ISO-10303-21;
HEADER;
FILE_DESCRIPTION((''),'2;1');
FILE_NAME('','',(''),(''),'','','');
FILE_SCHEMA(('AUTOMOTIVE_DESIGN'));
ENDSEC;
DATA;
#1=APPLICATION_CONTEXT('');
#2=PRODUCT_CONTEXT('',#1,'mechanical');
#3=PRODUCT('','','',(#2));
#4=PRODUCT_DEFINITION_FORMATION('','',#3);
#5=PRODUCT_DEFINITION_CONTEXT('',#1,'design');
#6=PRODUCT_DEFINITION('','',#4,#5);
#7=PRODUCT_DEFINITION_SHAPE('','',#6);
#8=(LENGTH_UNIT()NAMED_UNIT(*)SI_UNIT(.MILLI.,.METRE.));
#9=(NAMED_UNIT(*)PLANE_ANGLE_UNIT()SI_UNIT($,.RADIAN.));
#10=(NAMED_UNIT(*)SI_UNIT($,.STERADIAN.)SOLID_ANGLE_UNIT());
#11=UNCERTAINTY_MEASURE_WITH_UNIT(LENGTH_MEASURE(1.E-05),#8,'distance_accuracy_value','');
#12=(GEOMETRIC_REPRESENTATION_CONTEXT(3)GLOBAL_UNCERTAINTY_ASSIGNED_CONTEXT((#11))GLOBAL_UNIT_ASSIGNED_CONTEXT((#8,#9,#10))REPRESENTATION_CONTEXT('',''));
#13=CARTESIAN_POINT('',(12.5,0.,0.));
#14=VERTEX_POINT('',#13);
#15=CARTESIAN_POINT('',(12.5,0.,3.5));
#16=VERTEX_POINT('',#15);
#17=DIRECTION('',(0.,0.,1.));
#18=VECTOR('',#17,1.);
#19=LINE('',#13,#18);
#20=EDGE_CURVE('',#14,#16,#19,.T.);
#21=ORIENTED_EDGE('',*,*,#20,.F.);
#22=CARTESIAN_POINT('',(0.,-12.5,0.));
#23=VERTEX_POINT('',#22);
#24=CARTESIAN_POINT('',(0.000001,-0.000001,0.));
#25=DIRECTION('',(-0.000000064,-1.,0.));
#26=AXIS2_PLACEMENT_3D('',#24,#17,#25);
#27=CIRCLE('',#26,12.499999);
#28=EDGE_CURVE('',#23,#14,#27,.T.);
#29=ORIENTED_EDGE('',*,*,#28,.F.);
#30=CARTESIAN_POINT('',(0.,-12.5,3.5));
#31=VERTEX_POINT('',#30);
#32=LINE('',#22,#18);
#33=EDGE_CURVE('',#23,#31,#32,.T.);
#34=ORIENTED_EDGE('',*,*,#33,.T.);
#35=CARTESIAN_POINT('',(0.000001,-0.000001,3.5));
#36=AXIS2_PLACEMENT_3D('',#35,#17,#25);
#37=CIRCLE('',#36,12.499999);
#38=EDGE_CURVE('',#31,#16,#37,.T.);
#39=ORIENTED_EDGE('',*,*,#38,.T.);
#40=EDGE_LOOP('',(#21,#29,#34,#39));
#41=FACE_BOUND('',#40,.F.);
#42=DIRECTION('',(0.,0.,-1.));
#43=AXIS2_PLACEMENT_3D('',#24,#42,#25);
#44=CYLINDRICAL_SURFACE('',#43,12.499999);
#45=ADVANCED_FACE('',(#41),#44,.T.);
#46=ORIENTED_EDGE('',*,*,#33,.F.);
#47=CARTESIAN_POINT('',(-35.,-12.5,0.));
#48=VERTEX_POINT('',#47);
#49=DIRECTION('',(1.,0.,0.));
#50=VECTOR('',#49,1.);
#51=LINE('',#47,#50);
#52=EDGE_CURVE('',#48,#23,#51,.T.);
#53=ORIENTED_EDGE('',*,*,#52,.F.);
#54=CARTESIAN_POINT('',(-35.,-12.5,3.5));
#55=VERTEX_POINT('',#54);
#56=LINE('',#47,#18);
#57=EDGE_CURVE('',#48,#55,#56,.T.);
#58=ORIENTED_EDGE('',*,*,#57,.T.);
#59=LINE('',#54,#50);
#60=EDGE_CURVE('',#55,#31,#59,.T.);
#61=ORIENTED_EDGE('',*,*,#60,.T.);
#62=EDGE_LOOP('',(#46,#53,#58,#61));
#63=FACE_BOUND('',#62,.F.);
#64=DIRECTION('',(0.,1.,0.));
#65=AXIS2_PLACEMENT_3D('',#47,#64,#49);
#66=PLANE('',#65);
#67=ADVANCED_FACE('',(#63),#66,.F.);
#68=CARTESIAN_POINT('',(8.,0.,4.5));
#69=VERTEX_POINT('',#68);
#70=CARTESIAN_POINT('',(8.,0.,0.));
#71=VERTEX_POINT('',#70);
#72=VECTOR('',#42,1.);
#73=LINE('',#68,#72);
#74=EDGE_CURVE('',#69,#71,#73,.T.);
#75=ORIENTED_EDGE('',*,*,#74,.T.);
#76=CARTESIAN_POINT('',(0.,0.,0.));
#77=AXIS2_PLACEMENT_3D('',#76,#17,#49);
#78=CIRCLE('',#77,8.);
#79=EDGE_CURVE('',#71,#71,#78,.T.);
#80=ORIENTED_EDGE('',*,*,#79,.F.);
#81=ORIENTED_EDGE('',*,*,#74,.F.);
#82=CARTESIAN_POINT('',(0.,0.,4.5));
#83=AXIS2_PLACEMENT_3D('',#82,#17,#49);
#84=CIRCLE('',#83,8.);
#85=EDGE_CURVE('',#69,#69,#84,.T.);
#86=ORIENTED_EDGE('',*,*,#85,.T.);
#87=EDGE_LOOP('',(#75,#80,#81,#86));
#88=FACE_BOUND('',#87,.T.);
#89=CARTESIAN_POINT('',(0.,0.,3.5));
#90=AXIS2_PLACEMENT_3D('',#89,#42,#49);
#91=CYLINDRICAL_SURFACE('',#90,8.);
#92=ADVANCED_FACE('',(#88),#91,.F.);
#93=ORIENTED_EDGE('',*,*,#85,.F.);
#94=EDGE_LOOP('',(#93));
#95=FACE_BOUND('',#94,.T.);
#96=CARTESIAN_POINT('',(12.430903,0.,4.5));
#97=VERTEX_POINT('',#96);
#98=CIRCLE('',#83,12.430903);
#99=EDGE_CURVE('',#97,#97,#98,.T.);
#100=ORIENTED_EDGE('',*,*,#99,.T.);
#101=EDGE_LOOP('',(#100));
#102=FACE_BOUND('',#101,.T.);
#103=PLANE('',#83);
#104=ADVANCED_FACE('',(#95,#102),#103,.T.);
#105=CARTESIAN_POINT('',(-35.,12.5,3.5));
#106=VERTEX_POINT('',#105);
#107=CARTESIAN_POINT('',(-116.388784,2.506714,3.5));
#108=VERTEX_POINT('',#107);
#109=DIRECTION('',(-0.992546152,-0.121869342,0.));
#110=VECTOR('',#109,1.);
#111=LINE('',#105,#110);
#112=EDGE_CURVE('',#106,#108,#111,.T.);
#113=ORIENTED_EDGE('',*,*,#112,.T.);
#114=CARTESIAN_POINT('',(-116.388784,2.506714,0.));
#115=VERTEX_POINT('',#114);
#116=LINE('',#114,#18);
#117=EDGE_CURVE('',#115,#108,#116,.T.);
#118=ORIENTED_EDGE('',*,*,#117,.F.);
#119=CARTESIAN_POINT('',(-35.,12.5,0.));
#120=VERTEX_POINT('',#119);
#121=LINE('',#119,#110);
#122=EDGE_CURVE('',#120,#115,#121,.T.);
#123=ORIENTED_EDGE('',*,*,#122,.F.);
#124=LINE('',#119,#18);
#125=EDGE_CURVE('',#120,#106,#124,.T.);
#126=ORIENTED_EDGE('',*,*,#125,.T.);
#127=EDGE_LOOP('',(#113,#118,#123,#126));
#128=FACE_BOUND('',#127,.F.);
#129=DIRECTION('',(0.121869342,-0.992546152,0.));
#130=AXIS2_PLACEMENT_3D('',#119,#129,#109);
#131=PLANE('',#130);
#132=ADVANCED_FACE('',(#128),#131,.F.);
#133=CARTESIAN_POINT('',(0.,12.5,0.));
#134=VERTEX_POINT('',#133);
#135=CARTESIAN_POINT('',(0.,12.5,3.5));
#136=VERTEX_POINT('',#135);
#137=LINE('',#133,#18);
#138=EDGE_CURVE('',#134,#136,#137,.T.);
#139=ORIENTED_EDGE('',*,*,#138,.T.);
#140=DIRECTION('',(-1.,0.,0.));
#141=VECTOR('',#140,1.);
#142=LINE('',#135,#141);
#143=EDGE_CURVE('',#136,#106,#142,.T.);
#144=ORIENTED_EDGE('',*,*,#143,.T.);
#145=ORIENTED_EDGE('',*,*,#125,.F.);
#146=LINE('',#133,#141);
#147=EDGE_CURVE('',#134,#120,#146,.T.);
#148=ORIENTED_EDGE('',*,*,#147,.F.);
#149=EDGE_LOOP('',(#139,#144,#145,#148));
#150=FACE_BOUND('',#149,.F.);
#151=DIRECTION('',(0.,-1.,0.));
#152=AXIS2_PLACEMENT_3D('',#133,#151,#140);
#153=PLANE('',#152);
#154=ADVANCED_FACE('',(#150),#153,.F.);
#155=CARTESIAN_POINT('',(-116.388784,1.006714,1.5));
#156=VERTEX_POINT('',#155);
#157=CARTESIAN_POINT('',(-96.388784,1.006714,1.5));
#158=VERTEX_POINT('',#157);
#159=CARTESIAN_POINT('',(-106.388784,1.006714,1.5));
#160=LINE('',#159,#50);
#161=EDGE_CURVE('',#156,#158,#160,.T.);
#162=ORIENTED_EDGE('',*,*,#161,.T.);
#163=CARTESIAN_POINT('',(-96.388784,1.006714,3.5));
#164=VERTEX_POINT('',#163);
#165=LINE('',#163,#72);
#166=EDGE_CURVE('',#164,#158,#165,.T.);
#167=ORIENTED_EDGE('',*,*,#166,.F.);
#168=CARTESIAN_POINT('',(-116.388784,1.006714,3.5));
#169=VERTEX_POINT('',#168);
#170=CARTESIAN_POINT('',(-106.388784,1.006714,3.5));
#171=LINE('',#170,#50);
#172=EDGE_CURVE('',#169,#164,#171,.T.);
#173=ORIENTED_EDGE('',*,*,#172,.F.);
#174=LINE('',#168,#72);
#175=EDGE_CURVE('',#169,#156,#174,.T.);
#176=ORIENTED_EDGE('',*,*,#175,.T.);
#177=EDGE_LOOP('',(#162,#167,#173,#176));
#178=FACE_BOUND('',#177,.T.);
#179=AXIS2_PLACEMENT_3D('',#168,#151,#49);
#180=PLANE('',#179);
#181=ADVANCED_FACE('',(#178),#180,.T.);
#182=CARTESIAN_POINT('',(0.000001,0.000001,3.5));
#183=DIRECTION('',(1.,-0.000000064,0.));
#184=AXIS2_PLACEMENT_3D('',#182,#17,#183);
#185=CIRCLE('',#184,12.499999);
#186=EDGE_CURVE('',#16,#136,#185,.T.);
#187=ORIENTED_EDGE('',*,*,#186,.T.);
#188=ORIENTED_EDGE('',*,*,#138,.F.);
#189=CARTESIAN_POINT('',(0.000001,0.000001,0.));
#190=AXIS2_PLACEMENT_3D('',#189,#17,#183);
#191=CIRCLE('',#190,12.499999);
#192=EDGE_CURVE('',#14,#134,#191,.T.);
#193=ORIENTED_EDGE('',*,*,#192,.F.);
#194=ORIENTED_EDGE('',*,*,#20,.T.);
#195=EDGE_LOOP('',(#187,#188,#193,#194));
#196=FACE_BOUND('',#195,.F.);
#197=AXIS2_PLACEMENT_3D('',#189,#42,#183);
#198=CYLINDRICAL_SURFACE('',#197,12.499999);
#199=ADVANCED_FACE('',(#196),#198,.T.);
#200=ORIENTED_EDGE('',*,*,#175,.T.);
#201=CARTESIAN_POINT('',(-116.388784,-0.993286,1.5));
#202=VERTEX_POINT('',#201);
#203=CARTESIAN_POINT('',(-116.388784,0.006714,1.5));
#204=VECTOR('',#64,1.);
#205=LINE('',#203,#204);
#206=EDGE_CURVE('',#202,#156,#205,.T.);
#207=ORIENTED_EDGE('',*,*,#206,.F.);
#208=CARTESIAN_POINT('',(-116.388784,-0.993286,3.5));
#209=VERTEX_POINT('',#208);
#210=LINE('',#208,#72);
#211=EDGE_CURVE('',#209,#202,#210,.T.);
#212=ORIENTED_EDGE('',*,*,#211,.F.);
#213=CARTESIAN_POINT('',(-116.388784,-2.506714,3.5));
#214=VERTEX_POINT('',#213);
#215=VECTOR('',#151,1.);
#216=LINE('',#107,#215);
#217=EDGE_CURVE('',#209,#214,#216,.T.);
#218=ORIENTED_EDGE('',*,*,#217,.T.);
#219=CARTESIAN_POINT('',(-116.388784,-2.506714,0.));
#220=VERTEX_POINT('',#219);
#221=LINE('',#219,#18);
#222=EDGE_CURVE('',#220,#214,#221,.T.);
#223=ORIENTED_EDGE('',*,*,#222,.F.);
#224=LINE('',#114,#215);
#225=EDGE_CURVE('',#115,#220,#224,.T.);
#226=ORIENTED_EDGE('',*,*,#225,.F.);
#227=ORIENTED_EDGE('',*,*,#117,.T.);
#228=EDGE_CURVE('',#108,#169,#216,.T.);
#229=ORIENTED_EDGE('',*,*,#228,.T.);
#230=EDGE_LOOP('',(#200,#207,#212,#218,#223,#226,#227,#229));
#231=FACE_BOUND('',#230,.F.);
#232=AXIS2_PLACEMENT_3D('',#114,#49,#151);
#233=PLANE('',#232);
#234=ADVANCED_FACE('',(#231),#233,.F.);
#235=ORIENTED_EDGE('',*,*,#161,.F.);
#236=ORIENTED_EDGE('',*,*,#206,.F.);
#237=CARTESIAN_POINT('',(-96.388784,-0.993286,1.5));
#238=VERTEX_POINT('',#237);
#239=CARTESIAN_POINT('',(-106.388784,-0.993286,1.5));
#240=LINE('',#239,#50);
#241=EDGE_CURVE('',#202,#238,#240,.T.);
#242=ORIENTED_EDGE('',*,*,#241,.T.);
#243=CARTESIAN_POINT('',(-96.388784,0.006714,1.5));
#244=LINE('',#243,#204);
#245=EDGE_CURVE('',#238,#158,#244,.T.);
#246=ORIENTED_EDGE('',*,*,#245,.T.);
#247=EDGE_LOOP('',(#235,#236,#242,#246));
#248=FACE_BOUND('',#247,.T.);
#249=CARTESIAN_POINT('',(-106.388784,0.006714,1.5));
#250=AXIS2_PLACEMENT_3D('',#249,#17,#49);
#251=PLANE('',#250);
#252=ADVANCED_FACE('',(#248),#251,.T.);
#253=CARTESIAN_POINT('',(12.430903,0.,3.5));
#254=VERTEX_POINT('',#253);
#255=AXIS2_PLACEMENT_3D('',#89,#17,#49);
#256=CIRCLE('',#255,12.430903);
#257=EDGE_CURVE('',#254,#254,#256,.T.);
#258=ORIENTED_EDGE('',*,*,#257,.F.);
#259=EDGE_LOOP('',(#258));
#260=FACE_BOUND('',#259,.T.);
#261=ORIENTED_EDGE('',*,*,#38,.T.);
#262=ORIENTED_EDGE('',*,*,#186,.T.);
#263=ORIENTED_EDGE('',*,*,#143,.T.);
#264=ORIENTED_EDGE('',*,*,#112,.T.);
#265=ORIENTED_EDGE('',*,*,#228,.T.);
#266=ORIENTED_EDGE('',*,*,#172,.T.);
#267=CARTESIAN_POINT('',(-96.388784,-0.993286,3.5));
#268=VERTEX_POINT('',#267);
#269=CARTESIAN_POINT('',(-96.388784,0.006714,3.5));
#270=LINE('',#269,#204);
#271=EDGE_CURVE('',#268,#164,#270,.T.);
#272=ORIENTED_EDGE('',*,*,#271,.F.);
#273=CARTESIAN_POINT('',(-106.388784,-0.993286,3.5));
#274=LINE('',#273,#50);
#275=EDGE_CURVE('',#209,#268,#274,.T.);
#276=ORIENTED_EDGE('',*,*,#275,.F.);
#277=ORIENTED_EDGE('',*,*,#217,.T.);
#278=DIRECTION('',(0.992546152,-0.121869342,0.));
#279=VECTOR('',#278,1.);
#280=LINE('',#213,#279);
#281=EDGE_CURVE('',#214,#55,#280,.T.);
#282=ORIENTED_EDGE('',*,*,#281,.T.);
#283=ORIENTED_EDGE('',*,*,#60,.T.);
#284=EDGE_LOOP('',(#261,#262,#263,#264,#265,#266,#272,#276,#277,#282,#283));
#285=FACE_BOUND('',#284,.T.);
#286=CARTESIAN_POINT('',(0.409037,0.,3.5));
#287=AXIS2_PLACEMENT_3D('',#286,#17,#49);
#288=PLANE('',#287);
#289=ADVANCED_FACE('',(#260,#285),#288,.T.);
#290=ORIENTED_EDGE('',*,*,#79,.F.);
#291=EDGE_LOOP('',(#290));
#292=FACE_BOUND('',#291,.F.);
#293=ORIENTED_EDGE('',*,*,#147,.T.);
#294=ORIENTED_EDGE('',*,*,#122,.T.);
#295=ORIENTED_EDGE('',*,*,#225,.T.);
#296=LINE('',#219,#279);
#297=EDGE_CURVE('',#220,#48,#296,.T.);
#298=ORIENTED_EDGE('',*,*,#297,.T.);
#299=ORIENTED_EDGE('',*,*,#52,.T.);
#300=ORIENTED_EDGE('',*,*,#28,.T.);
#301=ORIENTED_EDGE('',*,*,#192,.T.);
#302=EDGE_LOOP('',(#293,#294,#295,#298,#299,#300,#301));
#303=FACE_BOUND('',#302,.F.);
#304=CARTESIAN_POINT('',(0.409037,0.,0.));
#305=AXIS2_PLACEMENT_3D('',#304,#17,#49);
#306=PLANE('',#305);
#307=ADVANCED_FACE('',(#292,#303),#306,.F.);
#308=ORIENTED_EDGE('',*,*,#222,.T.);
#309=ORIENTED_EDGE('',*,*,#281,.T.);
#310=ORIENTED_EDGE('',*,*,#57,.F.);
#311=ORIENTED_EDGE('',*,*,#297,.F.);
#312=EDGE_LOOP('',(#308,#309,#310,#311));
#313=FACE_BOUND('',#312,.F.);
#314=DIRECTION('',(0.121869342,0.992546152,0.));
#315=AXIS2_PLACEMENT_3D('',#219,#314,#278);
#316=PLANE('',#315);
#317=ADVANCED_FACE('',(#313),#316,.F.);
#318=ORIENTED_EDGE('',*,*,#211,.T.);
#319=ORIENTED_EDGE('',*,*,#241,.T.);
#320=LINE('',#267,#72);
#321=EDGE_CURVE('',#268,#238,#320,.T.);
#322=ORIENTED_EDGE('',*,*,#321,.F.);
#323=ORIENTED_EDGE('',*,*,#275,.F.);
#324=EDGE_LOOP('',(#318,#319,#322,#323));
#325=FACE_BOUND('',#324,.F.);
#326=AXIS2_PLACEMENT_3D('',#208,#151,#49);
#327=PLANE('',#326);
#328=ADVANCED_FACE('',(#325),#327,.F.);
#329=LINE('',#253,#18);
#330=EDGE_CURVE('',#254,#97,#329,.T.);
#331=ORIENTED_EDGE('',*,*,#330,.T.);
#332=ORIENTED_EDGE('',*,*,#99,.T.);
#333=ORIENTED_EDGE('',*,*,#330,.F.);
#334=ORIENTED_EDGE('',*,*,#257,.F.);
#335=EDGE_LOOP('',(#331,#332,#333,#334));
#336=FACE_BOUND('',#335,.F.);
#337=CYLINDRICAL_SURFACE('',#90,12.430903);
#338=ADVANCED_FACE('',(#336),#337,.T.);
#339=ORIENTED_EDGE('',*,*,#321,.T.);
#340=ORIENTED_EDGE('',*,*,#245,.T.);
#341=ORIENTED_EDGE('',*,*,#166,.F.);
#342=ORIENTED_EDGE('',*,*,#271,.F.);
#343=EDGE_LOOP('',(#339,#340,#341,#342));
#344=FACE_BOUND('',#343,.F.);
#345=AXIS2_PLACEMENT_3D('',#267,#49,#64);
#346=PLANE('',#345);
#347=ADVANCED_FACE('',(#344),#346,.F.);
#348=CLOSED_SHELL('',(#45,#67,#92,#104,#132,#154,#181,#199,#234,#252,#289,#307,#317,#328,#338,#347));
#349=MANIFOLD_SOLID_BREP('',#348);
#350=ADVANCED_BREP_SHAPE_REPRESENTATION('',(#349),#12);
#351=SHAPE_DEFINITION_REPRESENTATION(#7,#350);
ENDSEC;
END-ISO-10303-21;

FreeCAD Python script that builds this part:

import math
import FreeCAD as App
import Part
import Sketcher
Q = App.Units.Quantity

doc = App.newDocument("Part")
body = doc.addObject("PartDesign::Body", "Body")

sketch1 = body.newObject("Sketcher::SketchObject", "Sketch")
sketch1.AttachmentSupport = (doc.getObject("XY_Plane"), [""])
sketch1.MapMode = "FlatFace"
sketch1.addGeometry([
    Part.ArcOfCircle(Part.Circle(App.Vector(0, 0, 0), App.Vector(0, 0, 1), 12), math.radians(-90), math.radians(0)),
    Part.ArcOfCircle(Part.Circle(App.Vector(0, 0, 0), App.Vector(0, 0, 1), 12), math.radians(0), math.radians(90)),
    Part.LineSegment(App.Vector(0, 12, 0), App.Vector(-35, 12, 0)),
    Part.LineSegment(App.Vector(-35, 12, 0), App.Vector(-116, 3, 0)),
    Part.LineSegment(App.Vector(-116, 3, 0), App.Vector(-116, -3, 0)),
    Part.LineSegment(App.Vector(-116, -3, 0), App.Vector(-35, -12, 0)),
    Part.LineSegment(App.Vector(-35, -12, 0), App.Vector(0, -12, 0)),
    Part.Circle(App.Vector(0, 0, 0), App.Vector(0, 0, 1), 8),
], False)
sketch1.addConstraint([
    Sketcher.Constraint("Tangent", 0, 2, 1, 1),
    Sketcher.Constraint("Tangent", 1, 2, 2, 1),
    Sketcher.Constraint("Coincident", 2, 2, 3, 1),
    Sketcher.Constraint("Coincident", 3, 2, 4, 1),
    Sketcher.Constraint("Coincident", 4, 2, 5, 1),
    Sketcher.Constraint("Coincident", 5, 2, 6, 1),
    Sketcher.Constraint("Tangent", 6, 2, 0, 1),
    Sketcher.Constraint("Horizontal", 2),
    Sketcher.Constraint("Vertical", 4),
    Sketcher.Constraint("Horizontal", 6),
    Sketcher.Constraint("Coincident", 0, 3, -1, 1),
    Sketcher.Constraint("Coincident", 7, 3, -1, 1),
    Sketcher.Constraint("Equal", 0, 1),
    Sketcher.Constraint("PointOnObject", 0, 2, -1),
    Sketcher.Constraint("Vertical", 2, 2, 5, 2),
    Sketcher.Constraint("Equal", 3, 5),
    Sketcher.Constraint("Diameter", 7, Q("16 mm")),
    Sketcher.Constraint("Radius", 0, Q("12.499999 mm")),
    Sketcher.Constraint("DistanceX", 2, 2, 2, 1, Q("35 mm")),
    Sketcher.Constraint("Angle", 3, Q("-173 deg")),
    Sketcher.Constraint("Distance", 3, Q("82 mm")),
])
pad1 = body.newObject("PartDesign::Pad", "Pad")
pad1.Profile = sketch1
pad1.Length = 3.5

sketch2 = body.newObject("Sketcher::SketchObject", "Sketch001")
sketch2.AttachmentSupport = (doc.getObject("XY_Plane"), [""])
sketch2.MapMode = "FlatFace"
sketch2.AttachmentOffset = App.Placement(App.Vector(0, 0, 3.5), App.Rotation())
sketch2.addGeometry([
    Part.Circle(App.Vector(0, 0, 0), App.Vector(0, 0, 1), 12),
    Part.Circle(App.Vector(0, 0, 0), App.Vector(0, 0, 1), 8),
], False)
sketch2.addConstraint([
    Sketcher.Constraint("Coincident", 0, 3, -1, 1),
    Sketcher.Constraint("Coincident", 1, 3, -1, 1),
    Sketcher.Constraint("Diameter", 1, Q("16 mm")),
    Sketcher.Constraint("Diameter", 0, Q("24.861806 mm")),
])
pad2 = body.newObject("PartDesign::Pad", "Pad001")
pad2.Profile = sketch2
pad2.Length = 1

sketch3 = body.newObject("Sketcher::SketchObject", "Sketch002")
sketch3.AttachmentSupport = (doc.getObject("XY_Plane"), [""])
sketch3.MapMode = "FlatFace"
sketch3.AttachmentOffset = App.Placement(App.Vector(0, 0, 3.5), App.Rotation())
sketch3.addGeometry([
    Part.LineSegment(App.Vector(-116.4, 1, 0), App.Vector(-116.4, -1, 0)),
    Part.LineSegment(App.Vector(-116.4, -1, 0), App.Vector(-96.4, -1, 0)),
    Part.LineSegment(App.Vector(-96.4, -1, 0), App.Vector(-96.4, 1, 0)),
    Part.LineSegment(App.Vector(-96.4, 1, 0), App.Vector(-116.4, 1, 0)),
], False)
sketch3.addConstraint([
    Sketcher.Constraint("Coincident", 0, 2, 1, 1),
    Sketcher.Constraint("Coincident", 1, 2, 2, 1),
    Sketcher.Constraint("Coincident", 2, 2, 3, 1),
    Sketcher.Constraint("Coincident", 3, 2, 0, 1),
    Sketcher.Constraint("Vertical", 0),
    Sketcher.Constraint("Horizontal", 1),
    Sketcher.Constraint("Vertical", 2),
    Sketcher.Constraint("Horizontal", 3),
    Sketcher.Constraint("DistanceX", 1, 1, 1, 2, Q("20 mm")),
    Sketcher.Constraint("DistanceY", 0, 2, 0, 1, Q("2 mm")),
    Sketcher.Constraint("DistanceX", 0, 2, -1, 1, Q("116.388784 mm")),
    Sketcher.Constraint("DistanceY", 0, 2, -1, 1, Q("0.993286 mm")),
])
pocket1 = body.newObject("PartDesign::Pocket", "Pocket")
pocket1.Profile = sketch3
pocket1.Length = 2

doc.recompute()
